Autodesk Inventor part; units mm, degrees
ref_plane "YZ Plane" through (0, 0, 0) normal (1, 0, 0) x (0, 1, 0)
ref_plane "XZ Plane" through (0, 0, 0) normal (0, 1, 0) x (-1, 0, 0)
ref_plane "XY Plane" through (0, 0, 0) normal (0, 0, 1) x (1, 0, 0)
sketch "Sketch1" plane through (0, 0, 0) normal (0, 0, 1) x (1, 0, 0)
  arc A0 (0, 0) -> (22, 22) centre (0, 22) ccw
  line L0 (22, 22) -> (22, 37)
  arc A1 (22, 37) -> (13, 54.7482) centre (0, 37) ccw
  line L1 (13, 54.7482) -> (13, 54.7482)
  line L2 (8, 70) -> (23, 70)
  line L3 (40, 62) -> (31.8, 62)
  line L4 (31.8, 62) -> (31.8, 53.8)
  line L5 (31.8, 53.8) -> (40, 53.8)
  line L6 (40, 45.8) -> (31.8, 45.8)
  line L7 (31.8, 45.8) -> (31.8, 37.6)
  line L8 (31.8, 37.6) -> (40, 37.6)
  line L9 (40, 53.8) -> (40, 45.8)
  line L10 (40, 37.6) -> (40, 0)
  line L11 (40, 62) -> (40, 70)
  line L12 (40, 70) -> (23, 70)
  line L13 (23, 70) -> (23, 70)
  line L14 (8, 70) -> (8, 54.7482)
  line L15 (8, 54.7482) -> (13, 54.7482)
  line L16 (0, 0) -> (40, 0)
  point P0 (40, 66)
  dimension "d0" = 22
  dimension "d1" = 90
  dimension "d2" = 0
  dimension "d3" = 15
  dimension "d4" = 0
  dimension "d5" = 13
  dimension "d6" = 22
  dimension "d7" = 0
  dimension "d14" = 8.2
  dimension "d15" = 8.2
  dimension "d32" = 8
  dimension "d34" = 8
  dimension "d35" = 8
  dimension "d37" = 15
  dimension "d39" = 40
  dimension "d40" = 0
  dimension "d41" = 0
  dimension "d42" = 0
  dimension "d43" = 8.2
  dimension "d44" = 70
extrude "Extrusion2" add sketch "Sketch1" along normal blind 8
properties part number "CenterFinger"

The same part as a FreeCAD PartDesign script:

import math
import FreeCAD as App
import Part
import Sketcher
from FreeCAD import Vector
Q = App.Units.Quantity

doc = App.newDocument("Part")
body = doc.addObject("PartDesign::Body", "Body")

# Sketch on XY plane
sketch1 = doc.addObject("Sketcher::SketchObject", "Sketch")
body.addObject(sketch1)
sketch1.AttachmentSupport = (doc.XY_Plane, [""])
sketch1.MapMode = "FlatFace"
sketch1.addGeometry([
    Part.ArcOfCircle(Part.Circle(Vector(0, 22, 0), Vector(0, 0, 1), 22), math.radians(-90), math.radians(0)),  # 0
    Part.LineSegment(Vector(0, 0, 0), Vector(40, 0, 0)),  # 1
    Part.LineSegment(Vector(40, 0, 0), Vector(40, 38, 0)),  # 2
    Part.LineSegment(Vector(40, 38, 0), Vector(32, 38, 0)),  # 3
    Part.LineSegment(Vector(32, 38, 0), Vector(32, 46, 0)),  # 4
    Part.LineSegment(Vector(32, 46, 0), Vector(40, 46, 0)),  # 5
    Part.LineSegment(Vector(40, 46, 0), Vector(40, 54, 0)),  # 6
    Part.LineSegment(Vector(40, 54, 0), Vector(32, 54, 0)),  # 7
    Part.LineSegment(Vector(32, 54, 0), Vector(32, 62, 0)),  # 8
    Part.LineSegment(Vector(32, 62, 0), Vector(40, 62, 0)),  # 9
    Part.LineSegment(Vector(40, 62, 0), Vector(40, 70, 0)),  # 10
    Part.LineSegment(Vector(40, 70, 0), Vector(8, 70, 0)),  # 11
    Part.LineSegment(Vector(8, 70, 0), Vector(8, 55, 0)),  # 12
    Part.LineSegment(Vector(8, 55, 0), Vector(13, 55, 0)),  # 13
    Part.ArcOfCircle(Part.Circle(Vector(0, 37, 0), Vector(0, 0, 1), 22), math.radians(0), math.radians(54)),  # 14
    Part.LineSegment(Vector(22, 37, 0), Vector(22, 22, 0)),  # 15
], False)
sketch1.addConstraint([
    Sketcher.Constraint("Tangent", 0, 1, 1, 1),
    Sketcher.Constraint("Coincident", 1, 2, 2, 1),
    Sketcher.Constraint("Coincident", 2, 2, 3, 1),
    Sketcher.Constraint("Coincident", 3, 2, 4, 1),
    Sketcher.Constraint("Coincident", 4, 2, 5, 1),
    Sketcher.Constraint("Coincident", 5, 2, 6, 1),
    Sketcher.Constraint("Coincident", 6, 2, 7, 1),
    Sketcher.Constraint("Coincident", 7, 2, 8, 1),
    Sketcher.Constraint("Coincident", 8, 2, 9, 1),
    Sketcher.Constraint("Coincident", 9, 2, 10, 1),
    Sketcher.Constraint("Coincident", 10, 2, 11, 1),
    Sketcher.Constraint("Coincident", 11, 2, 12, 1),
    Sketcher.Constraint("Coincident", 12, 2, 13, 1),
    Sketcher.Constraint("Coincident", 13, 2, 14, 2),
    Sketcher.Constraint("Tangent", 14, 1, 15, 1),
    Sketcher.Constraint("Tangent", 15, 2, 0, 2),
    Sketcher.Constraint("Horizontal", 1),
    Sketcher.Constraint("Vertical", 2),
    Sketcher.Constraint("Horizontal", 3),
    Sketcher.Constraint("Vertical", 4),
    Sketcher.Constraint("Horizontal", 5),
    Sketcher.Constraint("Vertical", 6),
    Sketcher.Constraint("Horizontal", 7),
    Sketcher.Constraint("Vertical", 8),
    Sketcher.Constraint("Horizontal", 9),
    Sketcher.Constraint("Vertical", 10),
    Sketcher.Constraint("Horizontal", 11),
    Sketcher.Constraint("Vertical", 12),
    Sketcher.Constraint("Horizontal", 13),
    Sketcher.Constraint("Vertical", 15),
    Sketcher.Constraint("Coincident", 0, 1, -1, 1),
    Sketcher.Constraint("Equal", 0, 14),
    Sketcher.Constraint("Vertical", 2, 2, 5, 2),
    Sketcher.Constraint("Vertical", 4, 2, 7, 2),
    Sketcher.Constraint("Vertical", 6, 2, 9, 2),
    Sketcher.Constraint("Equal", 9, 4),
    Sketcher.Constraint("Equal", 4, 8),
    Sketcher.Constraint("Equal", 6, 10),
    Sketcher.Constraint("Radius", 0, Q("22 mm")),
    Sketcher.Constraint("DistanceX", 1, 1, 1, 2, Q("40 mm")),
    Sketcher.Constraint("DistanceY", 6, 1, 6, 2, Q("8 mm")),
    Sketcher.Constraint("DistanceY", 15, 2, 15, 1, Q("15 mm")),
    Sketcher.Constraint("DistanceX", 3, 2, 3, 1, Q("8.2 mm")),
    Sketcher.Constraint("DistanceY", -1, 1, 10, 2, Q("70 mm")),
    Sketcher.Constraint("DistanceX", -1, 1, 11, 2, Q("8 mm")),
    Sketcher.Constraint("DistanceX", -1, 1, 13, 2, Q("13 mm")),
])
pad1 = doc.addObject("PartDesign::Pad", "Pad")
body.addObject(pad1)
pad1.Profile = sketch1
pad1.Length = 8

doc.recompute()
